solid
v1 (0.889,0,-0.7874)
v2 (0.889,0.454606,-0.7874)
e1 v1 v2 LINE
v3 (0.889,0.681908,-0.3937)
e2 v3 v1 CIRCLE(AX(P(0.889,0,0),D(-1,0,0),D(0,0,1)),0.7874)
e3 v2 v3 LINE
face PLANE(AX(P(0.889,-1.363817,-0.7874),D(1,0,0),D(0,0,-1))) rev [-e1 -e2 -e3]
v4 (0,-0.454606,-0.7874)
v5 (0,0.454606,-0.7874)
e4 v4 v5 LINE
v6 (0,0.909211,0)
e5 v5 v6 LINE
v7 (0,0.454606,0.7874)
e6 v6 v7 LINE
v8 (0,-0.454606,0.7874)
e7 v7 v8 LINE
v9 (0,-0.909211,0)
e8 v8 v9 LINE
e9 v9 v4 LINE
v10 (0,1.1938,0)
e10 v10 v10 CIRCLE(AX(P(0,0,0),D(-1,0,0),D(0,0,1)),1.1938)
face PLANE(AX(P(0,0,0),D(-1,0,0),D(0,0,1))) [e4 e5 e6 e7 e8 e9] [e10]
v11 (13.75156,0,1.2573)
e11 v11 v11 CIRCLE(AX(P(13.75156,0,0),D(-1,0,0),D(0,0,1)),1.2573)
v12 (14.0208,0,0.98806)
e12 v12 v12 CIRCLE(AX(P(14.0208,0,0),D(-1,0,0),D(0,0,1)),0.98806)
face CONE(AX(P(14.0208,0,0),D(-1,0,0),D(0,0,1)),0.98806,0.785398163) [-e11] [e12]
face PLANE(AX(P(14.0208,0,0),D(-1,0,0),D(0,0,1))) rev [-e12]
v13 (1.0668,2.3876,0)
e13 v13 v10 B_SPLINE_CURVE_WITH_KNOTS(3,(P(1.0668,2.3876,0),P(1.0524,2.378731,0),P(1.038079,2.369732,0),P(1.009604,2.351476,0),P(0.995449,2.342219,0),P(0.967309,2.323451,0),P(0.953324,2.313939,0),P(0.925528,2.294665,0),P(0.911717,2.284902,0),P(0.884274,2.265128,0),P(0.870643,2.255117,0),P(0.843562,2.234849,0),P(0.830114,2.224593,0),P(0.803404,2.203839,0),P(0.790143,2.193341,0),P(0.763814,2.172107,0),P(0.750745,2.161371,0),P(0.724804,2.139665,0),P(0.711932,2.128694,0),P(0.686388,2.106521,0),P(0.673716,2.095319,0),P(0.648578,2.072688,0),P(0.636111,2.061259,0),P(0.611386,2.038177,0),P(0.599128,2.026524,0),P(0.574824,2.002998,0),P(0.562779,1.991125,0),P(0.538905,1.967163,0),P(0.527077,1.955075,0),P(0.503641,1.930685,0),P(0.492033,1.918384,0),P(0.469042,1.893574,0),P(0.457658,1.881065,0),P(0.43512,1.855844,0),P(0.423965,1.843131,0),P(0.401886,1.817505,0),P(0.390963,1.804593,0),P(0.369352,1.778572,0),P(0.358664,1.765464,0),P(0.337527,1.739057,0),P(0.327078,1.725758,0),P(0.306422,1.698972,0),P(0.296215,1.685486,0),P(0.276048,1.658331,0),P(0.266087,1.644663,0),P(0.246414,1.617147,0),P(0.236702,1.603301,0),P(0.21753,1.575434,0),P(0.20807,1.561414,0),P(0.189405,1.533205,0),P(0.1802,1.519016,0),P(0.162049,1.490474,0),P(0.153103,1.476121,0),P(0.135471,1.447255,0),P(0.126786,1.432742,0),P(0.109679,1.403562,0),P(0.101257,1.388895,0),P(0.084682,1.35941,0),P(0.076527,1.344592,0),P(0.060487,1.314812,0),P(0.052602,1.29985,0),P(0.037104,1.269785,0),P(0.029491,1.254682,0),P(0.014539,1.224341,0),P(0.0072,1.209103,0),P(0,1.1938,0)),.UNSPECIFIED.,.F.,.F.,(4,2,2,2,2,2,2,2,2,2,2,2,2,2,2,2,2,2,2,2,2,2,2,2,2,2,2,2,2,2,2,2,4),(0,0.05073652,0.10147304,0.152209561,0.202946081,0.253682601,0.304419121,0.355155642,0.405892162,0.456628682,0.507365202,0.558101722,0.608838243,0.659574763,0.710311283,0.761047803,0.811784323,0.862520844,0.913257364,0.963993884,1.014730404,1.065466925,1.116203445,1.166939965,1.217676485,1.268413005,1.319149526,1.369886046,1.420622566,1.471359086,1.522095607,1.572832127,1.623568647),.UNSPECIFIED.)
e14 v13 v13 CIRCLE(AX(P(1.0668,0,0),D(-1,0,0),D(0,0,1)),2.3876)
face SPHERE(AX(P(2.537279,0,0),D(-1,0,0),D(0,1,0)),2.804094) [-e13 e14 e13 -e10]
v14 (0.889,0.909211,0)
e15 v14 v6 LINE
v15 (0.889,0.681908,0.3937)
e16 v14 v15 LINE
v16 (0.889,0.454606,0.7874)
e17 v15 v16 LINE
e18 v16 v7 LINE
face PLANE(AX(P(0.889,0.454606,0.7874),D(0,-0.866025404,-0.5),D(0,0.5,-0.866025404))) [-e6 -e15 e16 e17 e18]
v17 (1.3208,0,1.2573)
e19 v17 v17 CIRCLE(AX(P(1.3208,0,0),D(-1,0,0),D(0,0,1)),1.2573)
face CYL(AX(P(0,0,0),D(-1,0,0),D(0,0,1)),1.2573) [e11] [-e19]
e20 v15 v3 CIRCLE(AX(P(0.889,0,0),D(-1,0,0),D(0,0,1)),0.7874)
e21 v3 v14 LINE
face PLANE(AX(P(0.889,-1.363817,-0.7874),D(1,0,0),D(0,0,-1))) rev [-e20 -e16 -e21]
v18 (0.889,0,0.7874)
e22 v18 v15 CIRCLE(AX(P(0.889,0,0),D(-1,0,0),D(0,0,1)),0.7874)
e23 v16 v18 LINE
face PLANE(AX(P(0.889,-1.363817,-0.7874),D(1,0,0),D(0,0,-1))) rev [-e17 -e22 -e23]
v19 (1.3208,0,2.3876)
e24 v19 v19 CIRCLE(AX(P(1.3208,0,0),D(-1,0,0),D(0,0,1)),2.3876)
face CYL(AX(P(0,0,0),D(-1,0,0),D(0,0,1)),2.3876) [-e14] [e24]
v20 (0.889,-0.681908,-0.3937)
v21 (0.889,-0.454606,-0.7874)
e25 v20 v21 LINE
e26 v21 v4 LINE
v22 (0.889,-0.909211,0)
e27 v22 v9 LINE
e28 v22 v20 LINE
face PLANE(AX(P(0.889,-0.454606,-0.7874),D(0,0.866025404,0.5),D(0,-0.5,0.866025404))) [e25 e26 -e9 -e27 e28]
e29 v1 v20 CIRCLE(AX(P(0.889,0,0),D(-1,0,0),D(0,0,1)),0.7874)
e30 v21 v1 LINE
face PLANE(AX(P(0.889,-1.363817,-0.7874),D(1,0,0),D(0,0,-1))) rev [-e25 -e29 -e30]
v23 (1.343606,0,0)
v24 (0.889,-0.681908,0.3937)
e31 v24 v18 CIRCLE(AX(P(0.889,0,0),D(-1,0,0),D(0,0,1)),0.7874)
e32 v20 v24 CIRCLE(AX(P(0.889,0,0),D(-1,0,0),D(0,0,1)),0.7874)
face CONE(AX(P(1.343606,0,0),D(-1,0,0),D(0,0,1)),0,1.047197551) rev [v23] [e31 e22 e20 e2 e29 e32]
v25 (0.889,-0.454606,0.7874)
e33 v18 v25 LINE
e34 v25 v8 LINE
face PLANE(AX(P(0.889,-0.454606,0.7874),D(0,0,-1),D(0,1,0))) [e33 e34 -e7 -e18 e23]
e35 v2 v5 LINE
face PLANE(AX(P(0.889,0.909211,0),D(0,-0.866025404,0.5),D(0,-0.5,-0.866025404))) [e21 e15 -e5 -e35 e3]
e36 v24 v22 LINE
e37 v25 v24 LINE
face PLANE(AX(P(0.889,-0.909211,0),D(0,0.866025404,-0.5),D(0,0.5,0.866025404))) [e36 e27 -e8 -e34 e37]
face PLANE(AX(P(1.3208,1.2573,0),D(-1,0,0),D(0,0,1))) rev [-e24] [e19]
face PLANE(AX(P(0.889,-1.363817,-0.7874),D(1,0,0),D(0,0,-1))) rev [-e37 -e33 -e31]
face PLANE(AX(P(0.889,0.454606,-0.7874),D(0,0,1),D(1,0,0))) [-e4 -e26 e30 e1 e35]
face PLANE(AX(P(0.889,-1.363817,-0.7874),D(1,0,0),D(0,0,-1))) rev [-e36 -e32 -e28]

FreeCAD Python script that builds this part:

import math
import FreeCAD as App
import Part
import Sketcher
Q = App.Units.Quantity


def add_polygon(sketch, points):
    """Adds a closed chain of lines whose ends are joined by coincident constraints."""
    first, n = sketch.GeometryCount, len(points)
    for a, b in zip(points, points[1:] + points[:1]):
        sketch.addGeometry(Part.LineSegment(App.Vector(*a, 0), App.Vector(*b, 0)), False)
    for i in range(n):
        sketch.addConstraint(Sketcher.Constraint("Coincident", first + i, 2, first + (i + 1) % n, 1))

doc = App.newDocument("Part")
body = doc.addObject("PartDesign::Body", "Body")

# Sketch on XY plane
sketch1 = doc.addObject("Sketcher::SketchObject", "Sketch")
body.addObject(sketch1)
sketch1.AttachmentSupport = (doc.XY_Plane, [""])
sketch1.MapMode = "FlatFace"
sketch1.addGeometry([
    Part.LineSegment(App.Vector(14.02, 0, 0), App.Vector(14.02, 0.99, 0)),  # 0
    Part.LineSegment(App.Vector(14.02, 0.99, 0), App.Vector(13.75, 1.26, 0)),  # 1
    Part.LineSegment(App.Vector(13.75, 1.26, 0), App.Vector(1.32, 1.26, 0)),  # 2
    Part.LineSegment(App.Vector(1.32, 1.26, 0), App.Vector(1.32, 2.39, 0)),  # 3
    Part.LineSegment(App.Vector(1.32, 2.39, 0), App.Vector(1.07, 2.39, 0)),  # 4
    Part.ArcOfCircle(Part.Circle(App.Vector(2.54, 0, 0), App.Vector(0, 0, 1), 2.8), math.radians(122), math.radians(155)),  # 5
    Part.LineSegment(App.Vector(0, 1.19, 0), App.Vector(0, 0, 0)),  # 6
    Part.LineSegment(App.Vector(0, 0, 0), App.Vector(14.02, 0, 0)),  # 7
], False)
sketch1.addConstraint([
    Sketcher.Constraint("Coincident", 0, 2, 1, 1),
    Sketcher.Constraint("Coincident", 1, 2, 2, 1),
    Sketcher.Constraint("Coincident", 2, 2, 3, 1),
    Sketcher.Constraint("Coincident", 3, 2, 4, 1),
    Sketcher.Constraint("Coincident", 4, 2, 5, 1),
    Sketcher.Constraint("Coincident", 5, 2, 6, 1),
    Sketcher.Constraint("Coincident", 6, 2, 7, 1),
    Sketcher.Constraint("Coincident", 7, 2, 0, 1),
    Sketcher.Constraint("Vertical", 0),
    Sketcher.Constraint("Horizontal", 2),
    Sketcher.Constraint("Vertical", 3),
    Sketcher.Constraint("Horizontal", 4),
    Sketcher.Constraint("Vertical", 6),
    Sketcher.Constraint("Horizontal", 7),
    Sketcher.Constraint("Coincident", 6, 2, -1, 1),
    Sketcher.Constraint("PointOnObject", 5, 3, -1),
    Sketcher.Constraint("Angle", 1, Q("135 deg")),
    Sketcher.Constraint("DistanceX", 4, 2, 4, 1, Q("0.01 in")),
    Sketcher.Constraint("DistanceX", 2, 2, 0, 2, Q("0.5 in")),
    Sketcher.Constraint("DistanceX", 7, 1, 7, 2, Q("0.552 in")),
    Sketcher.Constraint("DistanceY", 6, 2, 6, 1, Q("0.047 in")),
    Sketcher.Constraint("DistanceX", 2, 2, 2, 1, Q("0.4894 in")),
    Sketcher.Constraint("DistanceY", 0, 1, 0, 2, Q("0.0389 in")),
    Sketcher.Constraint("DistanceY", 3, 1, 3, 2, Q("0.0445 in")),
])
revolution = doc.addObject("PartDesign::Revolution", "Revolution")
body.addObject(revolution)
revolution.Profile = sketch1
revolution.ReferenceAxis = (sketch1, ["H_Axis"])
revolution.Angle = 360

# Sketch on XY plane
sketch2 = doc.addObject("Sketcher::SketchObject", "Sketch001")
body.addObject(sketch2)
sketch2.AttachmentSupport = (doc.XY_Plane, [""])
sketch2.MapMode = "FlatFace"
add_polygon(sketch2, [(0.9, 0.8), (0, 0.8), (0, 0), (1.3, 0)])  # lines 0-3
sketch2.addConstraint([
    Sketcher.Constraint("Horizontal", 0),
    Sketcher.Constraint("Vertical", 1),
    Sketcher.Constraint("Horizontal", 2),
    Sketcher.Constraint("Coincident", 1, 2, -1, 1),
    Sketcher.Constraint("Angle", 3, Q("120 deg")),
    Sketcher.Constraint("DistanceX", 0, 2, 0, 1, Q("0.035 in")),
    Sketcher.Constraint("DistanceY", 1, 2, 1, 1, Q("0.031 in")),
])
groove = doc.addObject("PartDesign::Groove", "Groove")
body.addObject(groove)
groove.Profile = sketch2
groove.ReferenceAxis = (sketch2, ["H_Axis"])
groove.Angle = 360

# Sketch on YZ plane
sketch3 = doc.addObject("Sketcher::SketchObject", "Sketch002")
body.addObject(sketch3)
sketch3.AttachmentSupport = (doc.YZ_Plane, [""])
sketch3.MapMode = "FlatFace"
add_polygon(sketch3, [(0.5, 0.8), (-0.5, 0.8), (-0.9, 0), (-0.5, -0.8), (0.5, -0.8), (0.9, 0)])  # lines 0-5
sketch3.addConstraint([
    Sketcher.Constraint("Horizontal", 0),
    Sketcher.Constraint("Horizontal", 3),
    Sketcher.Constraint("Symmetric", 0, 2, 3, 2, -1, 1),
    Sketcher.Constraint("Symmetric", 1, 2, 4, 2, -1, 1),
    Sketcher.Constraint("PointOnObject", 1, 2, -1),
    Sketcher.Constraint("Parallel", 2, 5),
    Sketcher.Constraint("Vertical", 0, 2, 2, 2),
    Sketcher.Constraint("Angle", 1, Q("-120 deg")),
    Sketcher.Constraint("DistanceY", -1, 1, 0, 2, Q("0.031 in")),
    Sketcher.Constraint("DistanceX", 0, 2, 0, 1, 0.909211),
])
pocket1 = doc.addObject("PartDesign::Pocket", "Pocket")
body.addObject(pocket1)
pocket1.Profile = sketch3
pocket1.Length = Q("0.035 in")
pocket1.Reversed = True

doc.recompute()
